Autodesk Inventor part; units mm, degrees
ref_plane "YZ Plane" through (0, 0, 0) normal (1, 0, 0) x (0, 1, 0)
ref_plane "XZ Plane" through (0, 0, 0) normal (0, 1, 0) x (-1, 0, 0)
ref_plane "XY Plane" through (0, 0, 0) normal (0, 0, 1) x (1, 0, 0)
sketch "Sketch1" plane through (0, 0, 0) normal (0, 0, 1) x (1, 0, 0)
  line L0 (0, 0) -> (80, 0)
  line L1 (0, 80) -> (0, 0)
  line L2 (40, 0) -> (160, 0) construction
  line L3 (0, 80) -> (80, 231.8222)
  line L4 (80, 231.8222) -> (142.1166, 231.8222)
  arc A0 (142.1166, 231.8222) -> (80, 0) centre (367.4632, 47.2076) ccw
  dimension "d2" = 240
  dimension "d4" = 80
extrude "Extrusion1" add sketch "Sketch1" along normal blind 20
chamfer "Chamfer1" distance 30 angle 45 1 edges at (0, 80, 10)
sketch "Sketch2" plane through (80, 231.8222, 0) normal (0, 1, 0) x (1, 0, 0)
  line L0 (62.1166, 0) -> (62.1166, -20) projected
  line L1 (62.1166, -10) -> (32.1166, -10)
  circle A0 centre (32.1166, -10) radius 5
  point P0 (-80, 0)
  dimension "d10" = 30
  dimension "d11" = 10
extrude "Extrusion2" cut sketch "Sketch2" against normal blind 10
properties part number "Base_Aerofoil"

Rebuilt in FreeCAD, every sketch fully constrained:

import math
import FreeCAD as App
import Part
import Sketcher
from FreeCAD import Vector


def edges_at(feature, points):
    """Names of the edges that pass closest to the given points."""
    edges = feature.Shape.Edges
    near = lambda p: min(range(len(edges)), key=lambda i: edges[i].distToShape(Part.Vertex(*p))[0])
    return sorted({f"Edge{near(p) + 1}" for p in points})

doc = App.newDocument("Part")
body = doc.addObject("PartDesign::Body", "Body")

# Sketch on XY plane
sketch1 = doc.addObject("Sketcher::SketchObject", "Sketch")
body.addObject(sketch1)
sketch1.AttachmentSupport = (doc.XY_Plane, [""])
sketch1.MapMode = "FlatFace"
sketch1.addGeometry(Part.LineSegment(Vector(0, 80, 0), Vector(0, 0, 0)), False)
sketch1.addGeometry(Part.LineSegment(Vector(0, 0, 0), Vector(80, 0, 0)), False)
sketch1.addGeometry(Part.ArcOfCircle(Part.Circle(Vector(367.4632, 47.2076, 0), Vector(0, 0, 1), 291.313647), math.radians(140.674043), math.radians(189.32595)), False)
sketch1.addGeometry(Part.LineSegment(Vector(142.1166, 231.8222, 0), Vector(80, 231.8222, 0)), False)
sketch1.addGeometry(Part.LineSegment(Vector(80, 231.8222, 0), Vector(0, 80, 0)), False)
sketch1.addConstraint(Sketcher.Constraint("Coincident", 0, 2, 1, 1))
sketch1.addConstraint(Sketcher.Constraint("Coincident", 1, 2, 2, 2))
sketch1.addConstraint(Sketcher.Constraint("Coincident", 2, 1, 3, 1))
sketch1.addConstraint(Sketcher.Constraint("Coincident", 3, 2, 4, 1))
sketch1.addConstraint(Sketcher.Constraint("Coincident", 4, 2, 0, 1))
sketch1.addConstraint(Sketcher.Constraint("Vertical", 0))
sketch1.addConstraint(Sketcher.Constraint("Horizontal", 1))
sketch1.addConstraint(Sketcher.Constraint("Horizontal", 3))
sketch1.addConstraint(Sketcher.Constraint("Coincident", 0, 2, -1, 1))
sketch1.addConstraint(Sketcher.Constraint("Vertical", 1, 2, 3, 2))
sketch1.addConstraint(Sketcher.Constraint("Equal", 1, 0))
sketch1.addConstraint(Sketcher.Constraint("DistanceX", 1, 1, 1, 2, 80.0))
sketch1.addConstraint(Sketcher.Constraint("Radius", 2, 291.3136))
sketch1.addConstraint(Sketcher.Constraint("Distance", 4, 171.61))
sketch1.addConstraint(Sketcher.Constraint("DistanceX", 3, 2, 3, 1, 62.1166))
pad1 = doc.addObject("PartDesign::Pad", "Pad")
body.addObject(pad1)
pad1.Profile = sketch1
pad1.Length = 20
doc.recompute()

chamfer = doc.addObject("PartDesign::Chamfer", "Chamfer")
body.addObject(chamfer)
chamfer.Base = (pad1, edges_at(pad1, [(0, 80, 10)]))
chamfer.Size = 30

# Sketch on XZ plane
sketch2 = doc.addObject("Sketcher::SketchObject", "Sketch001")
body.addObject(sketch2)
sketch2.AttachmentSupport = (doc.XZ_Plane, [""])
sketch2.MapMode = "FlatFace"
sketch2.AttachmentOffset = App.Placement(Vector(0, 0, -231.8222), App.Rotation())
sketch2.addGeometry(Part.Circle(Vector(112.1166, 10, 0), Vector(0, 0, 1), 5), False)
sketch2.addConstraint(Sketcher.Constraint("Diameter", 0, 10.0))
sketch2.addConstraint(Sketcher.Constraint("DistanceY", -1, 1, 0, 3, 10.0))
sketch2.addConstraint(Sketcher.Constraint("DistanceX", -1, 1, 0, 3, 112.1166))
pocket1 = doc.addObject("PartDesign::Pocket", "Pocket")
body.addObject(pocket1)
pocket1.Profile = sketch2
pocket1.Length = 10
pocket1.Reversed = True

doc.recompute()
